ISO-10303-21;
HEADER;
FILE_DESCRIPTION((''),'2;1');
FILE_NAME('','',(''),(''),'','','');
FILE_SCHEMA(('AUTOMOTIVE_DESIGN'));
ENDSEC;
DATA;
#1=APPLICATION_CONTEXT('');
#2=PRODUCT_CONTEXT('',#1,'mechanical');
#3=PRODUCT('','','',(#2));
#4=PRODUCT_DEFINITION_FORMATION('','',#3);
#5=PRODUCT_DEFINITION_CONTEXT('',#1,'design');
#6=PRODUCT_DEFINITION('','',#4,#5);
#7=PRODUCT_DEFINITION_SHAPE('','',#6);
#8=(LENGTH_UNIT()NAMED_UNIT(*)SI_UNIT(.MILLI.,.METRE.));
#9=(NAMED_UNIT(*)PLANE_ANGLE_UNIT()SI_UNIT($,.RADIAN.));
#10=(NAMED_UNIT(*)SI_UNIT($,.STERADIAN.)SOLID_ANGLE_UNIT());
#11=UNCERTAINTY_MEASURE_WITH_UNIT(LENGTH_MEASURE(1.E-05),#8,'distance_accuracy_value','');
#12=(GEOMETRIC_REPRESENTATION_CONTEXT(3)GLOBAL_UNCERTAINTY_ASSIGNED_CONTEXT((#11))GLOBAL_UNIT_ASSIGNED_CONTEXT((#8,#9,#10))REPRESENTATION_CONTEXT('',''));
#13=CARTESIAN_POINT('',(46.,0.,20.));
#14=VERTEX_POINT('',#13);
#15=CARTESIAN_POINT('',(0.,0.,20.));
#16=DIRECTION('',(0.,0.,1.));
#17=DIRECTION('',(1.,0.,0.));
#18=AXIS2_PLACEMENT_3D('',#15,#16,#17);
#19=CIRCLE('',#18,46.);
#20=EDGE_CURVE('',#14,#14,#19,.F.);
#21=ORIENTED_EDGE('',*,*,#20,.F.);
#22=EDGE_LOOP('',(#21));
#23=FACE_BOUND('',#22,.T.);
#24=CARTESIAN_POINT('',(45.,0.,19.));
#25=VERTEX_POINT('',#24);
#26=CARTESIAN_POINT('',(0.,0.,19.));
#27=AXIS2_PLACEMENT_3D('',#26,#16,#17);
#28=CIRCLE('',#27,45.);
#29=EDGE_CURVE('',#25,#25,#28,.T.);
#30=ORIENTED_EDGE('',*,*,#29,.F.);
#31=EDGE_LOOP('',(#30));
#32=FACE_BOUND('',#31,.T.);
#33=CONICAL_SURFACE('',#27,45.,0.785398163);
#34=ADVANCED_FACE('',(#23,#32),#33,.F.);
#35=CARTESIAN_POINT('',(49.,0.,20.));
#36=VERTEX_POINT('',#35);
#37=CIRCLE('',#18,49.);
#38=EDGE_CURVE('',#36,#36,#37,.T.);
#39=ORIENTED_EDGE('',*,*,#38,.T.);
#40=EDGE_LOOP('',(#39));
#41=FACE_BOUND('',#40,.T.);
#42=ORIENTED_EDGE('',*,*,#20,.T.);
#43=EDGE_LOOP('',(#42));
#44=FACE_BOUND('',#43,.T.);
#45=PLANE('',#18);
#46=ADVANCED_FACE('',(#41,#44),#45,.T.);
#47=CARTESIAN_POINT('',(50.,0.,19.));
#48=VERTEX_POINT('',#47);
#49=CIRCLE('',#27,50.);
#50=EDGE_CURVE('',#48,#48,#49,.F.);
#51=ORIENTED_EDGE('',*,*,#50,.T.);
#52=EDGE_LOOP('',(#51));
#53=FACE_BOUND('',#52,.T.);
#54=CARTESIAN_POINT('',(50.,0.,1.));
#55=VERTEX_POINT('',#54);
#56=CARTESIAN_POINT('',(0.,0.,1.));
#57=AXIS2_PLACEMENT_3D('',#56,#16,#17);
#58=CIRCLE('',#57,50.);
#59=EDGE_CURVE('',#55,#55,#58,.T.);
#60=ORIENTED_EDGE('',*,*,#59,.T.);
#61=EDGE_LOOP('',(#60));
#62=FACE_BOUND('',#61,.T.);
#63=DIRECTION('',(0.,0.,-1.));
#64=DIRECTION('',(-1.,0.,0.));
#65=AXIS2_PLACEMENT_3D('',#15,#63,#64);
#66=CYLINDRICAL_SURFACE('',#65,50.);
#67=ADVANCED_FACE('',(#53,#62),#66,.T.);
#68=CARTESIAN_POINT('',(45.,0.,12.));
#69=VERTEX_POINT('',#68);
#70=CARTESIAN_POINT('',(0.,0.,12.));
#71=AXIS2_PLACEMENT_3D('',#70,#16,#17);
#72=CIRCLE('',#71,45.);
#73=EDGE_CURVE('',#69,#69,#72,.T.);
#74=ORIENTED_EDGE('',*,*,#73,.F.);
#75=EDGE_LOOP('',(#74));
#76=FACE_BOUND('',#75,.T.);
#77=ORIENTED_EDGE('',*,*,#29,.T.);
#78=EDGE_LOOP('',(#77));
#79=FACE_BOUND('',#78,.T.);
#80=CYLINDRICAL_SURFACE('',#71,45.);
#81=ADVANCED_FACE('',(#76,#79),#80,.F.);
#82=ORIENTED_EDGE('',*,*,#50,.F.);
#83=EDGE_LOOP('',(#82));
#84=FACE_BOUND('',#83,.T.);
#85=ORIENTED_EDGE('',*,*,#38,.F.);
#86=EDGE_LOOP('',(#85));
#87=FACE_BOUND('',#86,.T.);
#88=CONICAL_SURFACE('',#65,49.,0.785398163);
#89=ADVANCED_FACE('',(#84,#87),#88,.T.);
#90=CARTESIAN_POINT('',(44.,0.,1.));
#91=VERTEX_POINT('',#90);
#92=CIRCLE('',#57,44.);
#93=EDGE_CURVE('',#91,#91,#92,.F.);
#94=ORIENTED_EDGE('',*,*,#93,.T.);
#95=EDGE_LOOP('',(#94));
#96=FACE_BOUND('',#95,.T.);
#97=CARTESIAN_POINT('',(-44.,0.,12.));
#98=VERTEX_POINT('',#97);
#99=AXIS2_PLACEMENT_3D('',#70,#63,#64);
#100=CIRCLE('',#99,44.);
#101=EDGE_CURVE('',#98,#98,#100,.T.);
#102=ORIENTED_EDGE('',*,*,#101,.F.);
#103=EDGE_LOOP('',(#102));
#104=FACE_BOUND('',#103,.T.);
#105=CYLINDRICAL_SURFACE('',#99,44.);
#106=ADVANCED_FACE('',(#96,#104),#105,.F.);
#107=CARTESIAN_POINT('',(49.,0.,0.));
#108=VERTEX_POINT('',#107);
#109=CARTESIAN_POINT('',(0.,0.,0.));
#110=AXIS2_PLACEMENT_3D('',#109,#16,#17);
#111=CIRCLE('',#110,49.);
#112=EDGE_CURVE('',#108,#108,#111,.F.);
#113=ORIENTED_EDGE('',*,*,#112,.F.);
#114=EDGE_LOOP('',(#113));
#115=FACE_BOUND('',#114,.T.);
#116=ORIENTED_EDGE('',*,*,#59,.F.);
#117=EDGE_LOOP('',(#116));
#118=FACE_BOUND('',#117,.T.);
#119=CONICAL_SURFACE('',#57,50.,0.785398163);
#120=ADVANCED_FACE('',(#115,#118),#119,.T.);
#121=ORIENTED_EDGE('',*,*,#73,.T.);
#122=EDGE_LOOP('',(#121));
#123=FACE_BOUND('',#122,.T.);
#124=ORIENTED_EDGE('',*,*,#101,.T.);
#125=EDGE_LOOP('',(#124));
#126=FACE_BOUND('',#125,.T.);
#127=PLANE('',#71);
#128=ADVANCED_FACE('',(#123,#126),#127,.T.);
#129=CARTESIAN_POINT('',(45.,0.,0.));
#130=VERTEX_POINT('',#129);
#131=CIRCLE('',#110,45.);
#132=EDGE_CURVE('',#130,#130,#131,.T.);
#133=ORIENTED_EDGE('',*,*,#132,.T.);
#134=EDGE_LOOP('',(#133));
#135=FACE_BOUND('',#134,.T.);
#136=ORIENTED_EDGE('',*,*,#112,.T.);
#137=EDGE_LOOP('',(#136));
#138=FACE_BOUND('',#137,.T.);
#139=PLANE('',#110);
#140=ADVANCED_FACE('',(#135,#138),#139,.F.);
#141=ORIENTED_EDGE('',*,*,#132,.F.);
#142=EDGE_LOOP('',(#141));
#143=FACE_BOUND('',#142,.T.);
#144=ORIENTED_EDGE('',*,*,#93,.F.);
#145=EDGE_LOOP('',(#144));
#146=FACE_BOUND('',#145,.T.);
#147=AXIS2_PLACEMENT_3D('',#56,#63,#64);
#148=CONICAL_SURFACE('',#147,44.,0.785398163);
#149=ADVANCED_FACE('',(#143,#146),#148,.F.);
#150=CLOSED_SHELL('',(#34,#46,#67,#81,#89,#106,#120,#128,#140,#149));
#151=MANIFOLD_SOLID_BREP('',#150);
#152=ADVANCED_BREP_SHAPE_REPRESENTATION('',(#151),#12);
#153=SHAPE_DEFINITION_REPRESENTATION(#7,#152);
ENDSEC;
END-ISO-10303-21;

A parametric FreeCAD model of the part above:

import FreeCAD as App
import Part
import Sketcher

V = App.Vector


def edges_at(feature, points):
    """Names of the edges that pass closest to the given points."""
    edges = feature.Shape.Edges
    near = lambda p: min(range(len(edges)), key=lambda i: edges[i].distToShape(Part.Vertex(*p))[0])
    return sorted({f"Edge{near(p) + 1}" for p in points})

doc = App.newDocument("Part")
body = doc.addObject("PartDesign::Body", "Body")

sketch1 = body.newObject("Sketcher::SketchObject", "Sketch")
sketch1.AttachmentSupport = (doc.getObject("XY_Plane"), [""])
sketch1.MapMode = "FlatFace"
sketch1.addGeometry(Part.Circle(V(0, 0, 0), V(0, 0, 1), 50), False)
sketch1.addConstraint([
    Sketcher.Constraint("Coincident", 0, 3, -1, 1),
    Sketcher.Constraint("Diameter", 0, 100.0),
])
pad1 = body.newObject("PartDesign::Pad", "Pad")
pad1.Profile = sketch1
pad1.Length = 20

sketch2 = body.newObject("Sketcher::SketchObject", "Sketch001")
sketch2.AttachmentSupport = (doc.getObject("XY_Plane"), [""])
sketch2.MapMode = "FlatFace"
sketch2.AttachmentOffset = App.Placement(V(0, 0, 20), App.Rotation())
sketch2.addGeometry(Part.Circle(V(0, 0, 0), V(0, 0, 1), 45), False)
sketch2.addConstraint([
    Sketcher.Constraint("Coincident", 0, 3, -1, 1),
    Sketcher.Constraint("Diameter", 0, 90.0),
])
pocket1 = body.newObject("PartDesign::Pocket", "Pocket")
pocket1.Profile = sketch2
pocket1.Length = 8

sketch3 = body.newObject("Sketcher::SketchObject", "Sketch002")
sketch3.AttachmentSupport = (doc.getObject("XY_Plane"), [""])
sketch3.MapMode = "FlatFace"
sketch3.addGeometry(Part.Circle(V(0, 0, 0), V(0, 0, 1), 44), False)
sketch3.addConstraint([
    Sketcher.Constraint("Coincident", 0, 3, -1, 1),
    Sketcher.Constraint("Diameter", 0, 88.0),
])
pocket2 = body.newObject("PartDesign::Pocket", "Pocket001")
pocket2.Profile = sketch3
pocket2.Length = 12
pocket2.Reversed = True
doc.recompute()

chamfer = body.newObject("PartDesign::Chamfer", "Chamfer")
chamfer.Base = (pocket2, edges_at(pocket2, [
    (44, 0, 0),
    (-50, 0, 0),
    (-50, 0, 20),
    (-45, 0, 20),
]))
chamfer.Size = 1

doc.recompute()
